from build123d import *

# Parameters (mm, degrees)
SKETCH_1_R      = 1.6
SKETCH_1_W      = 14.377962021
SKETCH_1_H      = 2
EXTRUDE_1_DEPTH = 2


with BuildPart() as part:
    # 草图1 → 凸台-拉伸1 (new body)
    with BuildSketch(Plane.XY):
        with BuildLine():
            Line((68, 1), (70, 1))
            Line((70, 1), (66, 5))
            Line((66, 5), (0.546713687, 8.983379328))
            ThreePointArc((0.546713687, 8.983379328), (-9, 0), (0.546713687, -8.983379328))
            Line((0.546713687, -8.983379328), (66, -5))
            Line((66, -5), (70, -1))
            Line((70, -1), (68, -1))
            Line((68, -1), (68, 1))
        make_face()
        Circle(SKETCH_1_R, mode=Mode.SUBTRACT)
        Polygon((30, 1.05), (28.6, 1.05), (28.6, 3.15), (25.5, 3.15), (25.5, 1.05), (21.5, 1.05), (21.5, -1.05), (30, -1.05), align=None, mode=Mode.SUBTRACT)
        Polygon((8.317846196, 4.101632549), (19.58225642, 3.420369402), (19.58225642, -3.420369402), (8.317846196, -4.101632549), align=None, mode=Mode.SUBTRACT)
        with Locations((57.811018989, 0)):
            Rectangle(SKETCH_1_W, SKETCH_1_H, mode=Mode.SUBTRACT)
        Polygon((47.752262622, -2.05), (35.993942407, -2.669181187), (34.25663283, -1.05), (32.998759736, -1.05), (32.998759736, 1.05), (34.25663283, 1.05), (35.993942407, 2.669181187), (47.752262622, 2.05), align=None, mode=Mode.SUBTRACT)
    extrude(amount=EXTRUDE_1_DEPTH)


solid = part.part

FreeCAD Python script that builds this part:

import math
import FreeCAD as App
import Part
import Sketcher
from FreeCAD import Vector

doc = App.newDocument("Part")
body = doc.addObject("PartDesign::Body", "Body")

sketch1 = body.newObject("Sketcher::SketchObject", "Sketch")
sketch1.AttachmentSupport = (doc.getObject("XY_Plane"), [""])
sketch1.MapMode = "FlatFace"
sketch1.addGeometry([
    Part.LineSegment(Vector(68, 1, 0), Vector(70, 1, 0)),
    Part.LineSegment(Vector(70, 1, 0), Vector(66, 5, 0)),
    Part.LineSegment(Vector(66, 5, 0), Vector(0.5, 9, 0)),
    Part.ArcOfCircle(Part.Circle(Vector(0, 0, 0), Vector(0, 0, 1), 9), math.radians(87), math.radians(273)),
    Part.LineSegment(Vector(0.5, -9, 0), Vector(66, -5, 0)),
    Part.LineSegment(Vector(66, -5, 0), Vector(70, -1, 0)),
    Part.LineSegment(Vector(70, -1, 0), Vector(68, -1, 0)),
    Part.LineSegment(Vector(68, -1, 0), Vector(68, 1, 0)),
    Part.Circle(Vector(0, 0, 0), Vector(0, 0, 1), 1.6),
    Part.LineSegment(Vector(8.3, -4.1, 0), Vector(8.3, 4.1, 0)),
    Part.LineSegment(Vector(8.3, 4.1, 0), Vector(19.6, 3.4, 0)),
    Part.LineSegment(Vector(19.6, 3.4, 0), Vector(19.6, -3.4, 0)),
    Part.LineSegment(Vector(19.6, -3.4, 0), Vector(8.3, -4.1, 0)),
    Part.LineSegment(Vector(47.8, 2, 0), Vector(47.8, -2, 0)),
    Part.LineSegment(Vector(47.8, -2, 0), Vector(36, -2.7, 0)),
    Part.LineSegment(Vector(36, -2.7, 0), Vector(34.3, -1.1, 0)),
    Part.LineSegment(Vector(34.3, -1.1, 0), Vector(33, -1.1, 0)),
    Part.LineSegment(Vector(33, -1.1, 0), Vector(33, 1.1, 0)),
    Part.LineSegment(Vector(33, 1.1, 0), Vector(34.3, 1.1, 0)),
    Part.LineSegment(Vector(34.3, 1.1, 0), Vector(36, 2.7, 0)),
    Part.LineSegment(Vector(36, 2.7, 0), Vector(47.8, 2, 0)),
    Part.LineSegment(Vector(65, -1, 0), Vector(50.6, -1, 0)),
    Part.LineSegment(Vector(50.6, -1, 0), Vector(50.6, 1, 0)),
    Part.LineSegment(Vector(50.6, 1, 0), Vector(65, 1, 0)),
    Part.LineSegment(Vector(65, 1, 0), Vector(65, -1, 0)),
    Part.LineSegment(Vector(28.6, 1.1, 0), Vector(30, 1.1, 0)),
    Part.LineSegment(Vector(30, 1.1, 0), Vector(30, -1.1, 0)),
    Part.LineSegment(Vector(30, -1.1, 0), Vector(21.5, -1.1, 0)),
    Part.LineSegment(Vector(21.5, -1.1, 0), Vector(21.5, 1.1, 0)),
    Part.LineSegment(Vector(21.5, 1.1, 0), Vector(25.5, 1.1, 0)),
    Part.LineSegment(Vector(25.5, 1.1, 0), Vector(25.5, 3.1, 0)),
    Part.LineSegment(Vector(25.5, 3.1, 0), Vector(28.6, 3.1, 0)),
    Part.LineSegment(Vector(28.6, 3.1, 0), Vector(28.6, 1.1, 0)),
], False)
sketch1.addConstraint([
    Sketcher.Constraint("Coincident", 0, 2, 1, 1),
    Sketcher.Constraint("Coincident", 1, 2, 2, 1),
    Sketcher.Constraint("Tangent", 2, 2, 3, 1),
    Sketcher.Constraint("Tangent", 3, 2, 4, 1),
    Sketcher.Constraint("Coincident", 4, 2, 5, 1),
    Sketcher.Constraint("Coincident", 5, 2, 6, 1),
    Sketcher.Constraint("Coincident", 6, 2, 7, 1),
    Sketcher.Constraint("Coincident", 7, 2, 0, 1),
    Sketcher.Constraint("Coincident", 9, 2, 10, 1),
    Sketcher.Constraint("Coincident", 10, 2, 11, 1),
    Sketcher.Constraint("Coincident", 11, 2, 12, 1),
    Sketcher.Constraint("Coincident", 12, 2, 9, 1),
    Sketcher.Constraint("Coincident", 13, 2, 14, 1),
    Sketcher.Constraint("Coincident", 14, 2, 15, 1),
    Sketcher.Constraint("Coincident", 15, 2, 16, 1),
    Sketcher.Constraint("Coincident", 16, 2, 17, 1),
    Sketcher.Constraint("Coincident", 17, 2, 18, 1),
    Sketcher.Constraint("Coincident", 18, 2, 19, 1),
    Sketcher.Constraint("Coincident", 19, 2, 20, 1),
    Sketcher.Constraint("Coincident", 20, 2, 13, 1),
    Sketcher.Constraint("Coincident", 21, 2, 22, 1),
    Sketcher.Constraint("Coincident", 22, 2, 23, 1),
    Sketcher.Constraint("Coincident", 23, 2, 24, 1),
    Sketcher.Constraint("Coincident", 24, 2, 21, 1),
    Sketcher.Constraint("Coincident", 25, 2, 26, 1),
    Sketcher.Constraint("Coincident", 26, 2, 27, 1),
    Sketcher.Constraint("Coincident", 27, 2, 28, 1),
    Sketcher.Constraint("Coincident", 28, 2, 29, 1),
    Sketcher.Constraint("Coincident", 29, 2, 30, 1),
    Sketcher.Constraint("Coincident", 30, 2, 31, 1),
    Sketcher.Constraint("Coincident", 31, 2, 32, 1),
    Sketcher.Constraint("Coincident", 32, 2, 25, 1),
    Sketcher.Constraint("Horizontal", 0),
    Sketcher.Constraint("Horizontal", 6),
    Sketcher.Constraint("Vertical", 7),
    Sketcher.Constraint("Vertical", 9),
    Sketcher.Constraint("Vertical", 11),
    Sketcher.Constraint("Vertical", 13),
    Sketcher.Constraint("Horizontal", 16),
    Sketcher.Constraint("Vertical", 17),
    Sketcher.Constraint("Horizontal", 18),
    Sketcher.Constraint("Horizontal", 21),
    Sketcher.Constraint("Vertical", 22),
    Sketcher.Constraint("Horizontal", 23),
    Sketcher.Constraint("Vertical", 24),
    Sketcher.Constraint("Horizontal", 25),
    Sketcher.Constraint("Vertical", 26),
    Sketcher.Constraint("Horizontal", 27),
    Sketcher.Constraint("Vertical", 28),
    Sketcher.Constraint("Horizontal", 29),
    Sketcher.Constraint("Vertical", 30),
    Sketcher.Constraint("Horizontal", 31),
    Sketcher.Constraint("Vertical", 32),
    Sketcher.Constraint("Coincident", 3, 3, -1, 1),
    Sketcher.Constraint("Coincident", 8, 3, -1, 1),
    Sketcher.Constraint("Symmetric", 1, 2, 4, 2, -1),
    Sketcher.Constraint("Symmetric", 0, 2, 5, 2, -1),
    Sketcher.Constraint("Symmetric", 15, 2, 18, 2, -1),
    Sketcher.Constraint("Symmetric", 14, 2, 19, 2, -1),
    Sketcher.Constraint("Perpendicular", 1, 5),
    Sketcher.Constraint("Horizontal", 6, 2, 21, 2),
    Sketcher.Constraint("Horizontal", 7, 2, 22, 2),
    Sketcher.Constraint("Horizontal", 18, 2, 25, 2),
    Sketcher.Constraint("Horizontal", 16, 2, 26, 2),
    Sketcher.Constraint("Horizontal", 25, 2, 28, 2),
    Sketcher.Constraint("Equal", 6, 7),
    Sketcher.Constraint("Equal", 28, 30),
    Sketcher.Constraint("Equal", 10, 12),
    Sketcher.Constraint("Equal", 14, 20),
    Sketcher.Constraint("Radius", 3, 9.0),
    Sketcher.Constraint("Diameter", 8, 3.2),
    Sketcher.Constraint("DistanceX", 0, 1, 0, 2, 2.0),
    Sketcher.Constraint("DistanceX", 29, 1, 29, 2, 4.0),
    Sketcher.Constraint("DistanceX", 25, 1, 25, 2, 1.4),
    Sketcher.Constraint("DistanceX", 27, 2, 27, 1, 8.5),
    Sketcher.Constraint("DistanceY", 13, 2, 13, 1, 4.1),
    Sketcher.Constraint("DistanceY", 17, 1, 17, 2, 2.1),
    Sketcher.Constraint("DistanceX", -1, 1, 0, 2, 70.0),
    Sketcher.Constraint("DistanceX", -1, 1, 1, 2, 66.0),
    Sketcher.Constraint("DistanceX", -1, 1, 23, 2, 65.0),
    Sketcher.Constraint("DistanceX", -1, 1, 25, 2, 30.0),
    Sketcher.Constraint("DistanceY", 11, 2, 9, 2, 7.522002),
    Sketcher.Constraint("DistanceY", 11, 2, 11, 1, 6.840739),
    Sketcher.Constraint("Distance", 14, 11.774612),
    Sketcher.Constraint("DistanceX", 16, 2, 16, 1, 1.257873),
    Sketcher.Constraint("DistanceX", 21, 2, 21, 1, 14.377962),
    Sketcher.Constraint("DistanceY", -1, 1, 10, 2, 3.420369),
    Sketcher.Constraint("DistanceY", 14, 2, -1, 1, 2.669181),
    Sketcher.Constraint("DistanceX", -1, 1, 16, 2, 32.99876),
    Sketcher.Constraint("DistanceX", 9, 2, 10, 2, 11.26441),
    Sketcher.Constraint("DistanceX", 15, 2, 14, 2, 1.73731),
    Sketcher.Constraint("DistanceX", -1, 1, 9, 2, 8.317846),
])
pad1 = body.newObject("PartDesign::Pad", "Pad")
pad1.Profile = sketch1
pad1.Length = 2

doc.recompute()
